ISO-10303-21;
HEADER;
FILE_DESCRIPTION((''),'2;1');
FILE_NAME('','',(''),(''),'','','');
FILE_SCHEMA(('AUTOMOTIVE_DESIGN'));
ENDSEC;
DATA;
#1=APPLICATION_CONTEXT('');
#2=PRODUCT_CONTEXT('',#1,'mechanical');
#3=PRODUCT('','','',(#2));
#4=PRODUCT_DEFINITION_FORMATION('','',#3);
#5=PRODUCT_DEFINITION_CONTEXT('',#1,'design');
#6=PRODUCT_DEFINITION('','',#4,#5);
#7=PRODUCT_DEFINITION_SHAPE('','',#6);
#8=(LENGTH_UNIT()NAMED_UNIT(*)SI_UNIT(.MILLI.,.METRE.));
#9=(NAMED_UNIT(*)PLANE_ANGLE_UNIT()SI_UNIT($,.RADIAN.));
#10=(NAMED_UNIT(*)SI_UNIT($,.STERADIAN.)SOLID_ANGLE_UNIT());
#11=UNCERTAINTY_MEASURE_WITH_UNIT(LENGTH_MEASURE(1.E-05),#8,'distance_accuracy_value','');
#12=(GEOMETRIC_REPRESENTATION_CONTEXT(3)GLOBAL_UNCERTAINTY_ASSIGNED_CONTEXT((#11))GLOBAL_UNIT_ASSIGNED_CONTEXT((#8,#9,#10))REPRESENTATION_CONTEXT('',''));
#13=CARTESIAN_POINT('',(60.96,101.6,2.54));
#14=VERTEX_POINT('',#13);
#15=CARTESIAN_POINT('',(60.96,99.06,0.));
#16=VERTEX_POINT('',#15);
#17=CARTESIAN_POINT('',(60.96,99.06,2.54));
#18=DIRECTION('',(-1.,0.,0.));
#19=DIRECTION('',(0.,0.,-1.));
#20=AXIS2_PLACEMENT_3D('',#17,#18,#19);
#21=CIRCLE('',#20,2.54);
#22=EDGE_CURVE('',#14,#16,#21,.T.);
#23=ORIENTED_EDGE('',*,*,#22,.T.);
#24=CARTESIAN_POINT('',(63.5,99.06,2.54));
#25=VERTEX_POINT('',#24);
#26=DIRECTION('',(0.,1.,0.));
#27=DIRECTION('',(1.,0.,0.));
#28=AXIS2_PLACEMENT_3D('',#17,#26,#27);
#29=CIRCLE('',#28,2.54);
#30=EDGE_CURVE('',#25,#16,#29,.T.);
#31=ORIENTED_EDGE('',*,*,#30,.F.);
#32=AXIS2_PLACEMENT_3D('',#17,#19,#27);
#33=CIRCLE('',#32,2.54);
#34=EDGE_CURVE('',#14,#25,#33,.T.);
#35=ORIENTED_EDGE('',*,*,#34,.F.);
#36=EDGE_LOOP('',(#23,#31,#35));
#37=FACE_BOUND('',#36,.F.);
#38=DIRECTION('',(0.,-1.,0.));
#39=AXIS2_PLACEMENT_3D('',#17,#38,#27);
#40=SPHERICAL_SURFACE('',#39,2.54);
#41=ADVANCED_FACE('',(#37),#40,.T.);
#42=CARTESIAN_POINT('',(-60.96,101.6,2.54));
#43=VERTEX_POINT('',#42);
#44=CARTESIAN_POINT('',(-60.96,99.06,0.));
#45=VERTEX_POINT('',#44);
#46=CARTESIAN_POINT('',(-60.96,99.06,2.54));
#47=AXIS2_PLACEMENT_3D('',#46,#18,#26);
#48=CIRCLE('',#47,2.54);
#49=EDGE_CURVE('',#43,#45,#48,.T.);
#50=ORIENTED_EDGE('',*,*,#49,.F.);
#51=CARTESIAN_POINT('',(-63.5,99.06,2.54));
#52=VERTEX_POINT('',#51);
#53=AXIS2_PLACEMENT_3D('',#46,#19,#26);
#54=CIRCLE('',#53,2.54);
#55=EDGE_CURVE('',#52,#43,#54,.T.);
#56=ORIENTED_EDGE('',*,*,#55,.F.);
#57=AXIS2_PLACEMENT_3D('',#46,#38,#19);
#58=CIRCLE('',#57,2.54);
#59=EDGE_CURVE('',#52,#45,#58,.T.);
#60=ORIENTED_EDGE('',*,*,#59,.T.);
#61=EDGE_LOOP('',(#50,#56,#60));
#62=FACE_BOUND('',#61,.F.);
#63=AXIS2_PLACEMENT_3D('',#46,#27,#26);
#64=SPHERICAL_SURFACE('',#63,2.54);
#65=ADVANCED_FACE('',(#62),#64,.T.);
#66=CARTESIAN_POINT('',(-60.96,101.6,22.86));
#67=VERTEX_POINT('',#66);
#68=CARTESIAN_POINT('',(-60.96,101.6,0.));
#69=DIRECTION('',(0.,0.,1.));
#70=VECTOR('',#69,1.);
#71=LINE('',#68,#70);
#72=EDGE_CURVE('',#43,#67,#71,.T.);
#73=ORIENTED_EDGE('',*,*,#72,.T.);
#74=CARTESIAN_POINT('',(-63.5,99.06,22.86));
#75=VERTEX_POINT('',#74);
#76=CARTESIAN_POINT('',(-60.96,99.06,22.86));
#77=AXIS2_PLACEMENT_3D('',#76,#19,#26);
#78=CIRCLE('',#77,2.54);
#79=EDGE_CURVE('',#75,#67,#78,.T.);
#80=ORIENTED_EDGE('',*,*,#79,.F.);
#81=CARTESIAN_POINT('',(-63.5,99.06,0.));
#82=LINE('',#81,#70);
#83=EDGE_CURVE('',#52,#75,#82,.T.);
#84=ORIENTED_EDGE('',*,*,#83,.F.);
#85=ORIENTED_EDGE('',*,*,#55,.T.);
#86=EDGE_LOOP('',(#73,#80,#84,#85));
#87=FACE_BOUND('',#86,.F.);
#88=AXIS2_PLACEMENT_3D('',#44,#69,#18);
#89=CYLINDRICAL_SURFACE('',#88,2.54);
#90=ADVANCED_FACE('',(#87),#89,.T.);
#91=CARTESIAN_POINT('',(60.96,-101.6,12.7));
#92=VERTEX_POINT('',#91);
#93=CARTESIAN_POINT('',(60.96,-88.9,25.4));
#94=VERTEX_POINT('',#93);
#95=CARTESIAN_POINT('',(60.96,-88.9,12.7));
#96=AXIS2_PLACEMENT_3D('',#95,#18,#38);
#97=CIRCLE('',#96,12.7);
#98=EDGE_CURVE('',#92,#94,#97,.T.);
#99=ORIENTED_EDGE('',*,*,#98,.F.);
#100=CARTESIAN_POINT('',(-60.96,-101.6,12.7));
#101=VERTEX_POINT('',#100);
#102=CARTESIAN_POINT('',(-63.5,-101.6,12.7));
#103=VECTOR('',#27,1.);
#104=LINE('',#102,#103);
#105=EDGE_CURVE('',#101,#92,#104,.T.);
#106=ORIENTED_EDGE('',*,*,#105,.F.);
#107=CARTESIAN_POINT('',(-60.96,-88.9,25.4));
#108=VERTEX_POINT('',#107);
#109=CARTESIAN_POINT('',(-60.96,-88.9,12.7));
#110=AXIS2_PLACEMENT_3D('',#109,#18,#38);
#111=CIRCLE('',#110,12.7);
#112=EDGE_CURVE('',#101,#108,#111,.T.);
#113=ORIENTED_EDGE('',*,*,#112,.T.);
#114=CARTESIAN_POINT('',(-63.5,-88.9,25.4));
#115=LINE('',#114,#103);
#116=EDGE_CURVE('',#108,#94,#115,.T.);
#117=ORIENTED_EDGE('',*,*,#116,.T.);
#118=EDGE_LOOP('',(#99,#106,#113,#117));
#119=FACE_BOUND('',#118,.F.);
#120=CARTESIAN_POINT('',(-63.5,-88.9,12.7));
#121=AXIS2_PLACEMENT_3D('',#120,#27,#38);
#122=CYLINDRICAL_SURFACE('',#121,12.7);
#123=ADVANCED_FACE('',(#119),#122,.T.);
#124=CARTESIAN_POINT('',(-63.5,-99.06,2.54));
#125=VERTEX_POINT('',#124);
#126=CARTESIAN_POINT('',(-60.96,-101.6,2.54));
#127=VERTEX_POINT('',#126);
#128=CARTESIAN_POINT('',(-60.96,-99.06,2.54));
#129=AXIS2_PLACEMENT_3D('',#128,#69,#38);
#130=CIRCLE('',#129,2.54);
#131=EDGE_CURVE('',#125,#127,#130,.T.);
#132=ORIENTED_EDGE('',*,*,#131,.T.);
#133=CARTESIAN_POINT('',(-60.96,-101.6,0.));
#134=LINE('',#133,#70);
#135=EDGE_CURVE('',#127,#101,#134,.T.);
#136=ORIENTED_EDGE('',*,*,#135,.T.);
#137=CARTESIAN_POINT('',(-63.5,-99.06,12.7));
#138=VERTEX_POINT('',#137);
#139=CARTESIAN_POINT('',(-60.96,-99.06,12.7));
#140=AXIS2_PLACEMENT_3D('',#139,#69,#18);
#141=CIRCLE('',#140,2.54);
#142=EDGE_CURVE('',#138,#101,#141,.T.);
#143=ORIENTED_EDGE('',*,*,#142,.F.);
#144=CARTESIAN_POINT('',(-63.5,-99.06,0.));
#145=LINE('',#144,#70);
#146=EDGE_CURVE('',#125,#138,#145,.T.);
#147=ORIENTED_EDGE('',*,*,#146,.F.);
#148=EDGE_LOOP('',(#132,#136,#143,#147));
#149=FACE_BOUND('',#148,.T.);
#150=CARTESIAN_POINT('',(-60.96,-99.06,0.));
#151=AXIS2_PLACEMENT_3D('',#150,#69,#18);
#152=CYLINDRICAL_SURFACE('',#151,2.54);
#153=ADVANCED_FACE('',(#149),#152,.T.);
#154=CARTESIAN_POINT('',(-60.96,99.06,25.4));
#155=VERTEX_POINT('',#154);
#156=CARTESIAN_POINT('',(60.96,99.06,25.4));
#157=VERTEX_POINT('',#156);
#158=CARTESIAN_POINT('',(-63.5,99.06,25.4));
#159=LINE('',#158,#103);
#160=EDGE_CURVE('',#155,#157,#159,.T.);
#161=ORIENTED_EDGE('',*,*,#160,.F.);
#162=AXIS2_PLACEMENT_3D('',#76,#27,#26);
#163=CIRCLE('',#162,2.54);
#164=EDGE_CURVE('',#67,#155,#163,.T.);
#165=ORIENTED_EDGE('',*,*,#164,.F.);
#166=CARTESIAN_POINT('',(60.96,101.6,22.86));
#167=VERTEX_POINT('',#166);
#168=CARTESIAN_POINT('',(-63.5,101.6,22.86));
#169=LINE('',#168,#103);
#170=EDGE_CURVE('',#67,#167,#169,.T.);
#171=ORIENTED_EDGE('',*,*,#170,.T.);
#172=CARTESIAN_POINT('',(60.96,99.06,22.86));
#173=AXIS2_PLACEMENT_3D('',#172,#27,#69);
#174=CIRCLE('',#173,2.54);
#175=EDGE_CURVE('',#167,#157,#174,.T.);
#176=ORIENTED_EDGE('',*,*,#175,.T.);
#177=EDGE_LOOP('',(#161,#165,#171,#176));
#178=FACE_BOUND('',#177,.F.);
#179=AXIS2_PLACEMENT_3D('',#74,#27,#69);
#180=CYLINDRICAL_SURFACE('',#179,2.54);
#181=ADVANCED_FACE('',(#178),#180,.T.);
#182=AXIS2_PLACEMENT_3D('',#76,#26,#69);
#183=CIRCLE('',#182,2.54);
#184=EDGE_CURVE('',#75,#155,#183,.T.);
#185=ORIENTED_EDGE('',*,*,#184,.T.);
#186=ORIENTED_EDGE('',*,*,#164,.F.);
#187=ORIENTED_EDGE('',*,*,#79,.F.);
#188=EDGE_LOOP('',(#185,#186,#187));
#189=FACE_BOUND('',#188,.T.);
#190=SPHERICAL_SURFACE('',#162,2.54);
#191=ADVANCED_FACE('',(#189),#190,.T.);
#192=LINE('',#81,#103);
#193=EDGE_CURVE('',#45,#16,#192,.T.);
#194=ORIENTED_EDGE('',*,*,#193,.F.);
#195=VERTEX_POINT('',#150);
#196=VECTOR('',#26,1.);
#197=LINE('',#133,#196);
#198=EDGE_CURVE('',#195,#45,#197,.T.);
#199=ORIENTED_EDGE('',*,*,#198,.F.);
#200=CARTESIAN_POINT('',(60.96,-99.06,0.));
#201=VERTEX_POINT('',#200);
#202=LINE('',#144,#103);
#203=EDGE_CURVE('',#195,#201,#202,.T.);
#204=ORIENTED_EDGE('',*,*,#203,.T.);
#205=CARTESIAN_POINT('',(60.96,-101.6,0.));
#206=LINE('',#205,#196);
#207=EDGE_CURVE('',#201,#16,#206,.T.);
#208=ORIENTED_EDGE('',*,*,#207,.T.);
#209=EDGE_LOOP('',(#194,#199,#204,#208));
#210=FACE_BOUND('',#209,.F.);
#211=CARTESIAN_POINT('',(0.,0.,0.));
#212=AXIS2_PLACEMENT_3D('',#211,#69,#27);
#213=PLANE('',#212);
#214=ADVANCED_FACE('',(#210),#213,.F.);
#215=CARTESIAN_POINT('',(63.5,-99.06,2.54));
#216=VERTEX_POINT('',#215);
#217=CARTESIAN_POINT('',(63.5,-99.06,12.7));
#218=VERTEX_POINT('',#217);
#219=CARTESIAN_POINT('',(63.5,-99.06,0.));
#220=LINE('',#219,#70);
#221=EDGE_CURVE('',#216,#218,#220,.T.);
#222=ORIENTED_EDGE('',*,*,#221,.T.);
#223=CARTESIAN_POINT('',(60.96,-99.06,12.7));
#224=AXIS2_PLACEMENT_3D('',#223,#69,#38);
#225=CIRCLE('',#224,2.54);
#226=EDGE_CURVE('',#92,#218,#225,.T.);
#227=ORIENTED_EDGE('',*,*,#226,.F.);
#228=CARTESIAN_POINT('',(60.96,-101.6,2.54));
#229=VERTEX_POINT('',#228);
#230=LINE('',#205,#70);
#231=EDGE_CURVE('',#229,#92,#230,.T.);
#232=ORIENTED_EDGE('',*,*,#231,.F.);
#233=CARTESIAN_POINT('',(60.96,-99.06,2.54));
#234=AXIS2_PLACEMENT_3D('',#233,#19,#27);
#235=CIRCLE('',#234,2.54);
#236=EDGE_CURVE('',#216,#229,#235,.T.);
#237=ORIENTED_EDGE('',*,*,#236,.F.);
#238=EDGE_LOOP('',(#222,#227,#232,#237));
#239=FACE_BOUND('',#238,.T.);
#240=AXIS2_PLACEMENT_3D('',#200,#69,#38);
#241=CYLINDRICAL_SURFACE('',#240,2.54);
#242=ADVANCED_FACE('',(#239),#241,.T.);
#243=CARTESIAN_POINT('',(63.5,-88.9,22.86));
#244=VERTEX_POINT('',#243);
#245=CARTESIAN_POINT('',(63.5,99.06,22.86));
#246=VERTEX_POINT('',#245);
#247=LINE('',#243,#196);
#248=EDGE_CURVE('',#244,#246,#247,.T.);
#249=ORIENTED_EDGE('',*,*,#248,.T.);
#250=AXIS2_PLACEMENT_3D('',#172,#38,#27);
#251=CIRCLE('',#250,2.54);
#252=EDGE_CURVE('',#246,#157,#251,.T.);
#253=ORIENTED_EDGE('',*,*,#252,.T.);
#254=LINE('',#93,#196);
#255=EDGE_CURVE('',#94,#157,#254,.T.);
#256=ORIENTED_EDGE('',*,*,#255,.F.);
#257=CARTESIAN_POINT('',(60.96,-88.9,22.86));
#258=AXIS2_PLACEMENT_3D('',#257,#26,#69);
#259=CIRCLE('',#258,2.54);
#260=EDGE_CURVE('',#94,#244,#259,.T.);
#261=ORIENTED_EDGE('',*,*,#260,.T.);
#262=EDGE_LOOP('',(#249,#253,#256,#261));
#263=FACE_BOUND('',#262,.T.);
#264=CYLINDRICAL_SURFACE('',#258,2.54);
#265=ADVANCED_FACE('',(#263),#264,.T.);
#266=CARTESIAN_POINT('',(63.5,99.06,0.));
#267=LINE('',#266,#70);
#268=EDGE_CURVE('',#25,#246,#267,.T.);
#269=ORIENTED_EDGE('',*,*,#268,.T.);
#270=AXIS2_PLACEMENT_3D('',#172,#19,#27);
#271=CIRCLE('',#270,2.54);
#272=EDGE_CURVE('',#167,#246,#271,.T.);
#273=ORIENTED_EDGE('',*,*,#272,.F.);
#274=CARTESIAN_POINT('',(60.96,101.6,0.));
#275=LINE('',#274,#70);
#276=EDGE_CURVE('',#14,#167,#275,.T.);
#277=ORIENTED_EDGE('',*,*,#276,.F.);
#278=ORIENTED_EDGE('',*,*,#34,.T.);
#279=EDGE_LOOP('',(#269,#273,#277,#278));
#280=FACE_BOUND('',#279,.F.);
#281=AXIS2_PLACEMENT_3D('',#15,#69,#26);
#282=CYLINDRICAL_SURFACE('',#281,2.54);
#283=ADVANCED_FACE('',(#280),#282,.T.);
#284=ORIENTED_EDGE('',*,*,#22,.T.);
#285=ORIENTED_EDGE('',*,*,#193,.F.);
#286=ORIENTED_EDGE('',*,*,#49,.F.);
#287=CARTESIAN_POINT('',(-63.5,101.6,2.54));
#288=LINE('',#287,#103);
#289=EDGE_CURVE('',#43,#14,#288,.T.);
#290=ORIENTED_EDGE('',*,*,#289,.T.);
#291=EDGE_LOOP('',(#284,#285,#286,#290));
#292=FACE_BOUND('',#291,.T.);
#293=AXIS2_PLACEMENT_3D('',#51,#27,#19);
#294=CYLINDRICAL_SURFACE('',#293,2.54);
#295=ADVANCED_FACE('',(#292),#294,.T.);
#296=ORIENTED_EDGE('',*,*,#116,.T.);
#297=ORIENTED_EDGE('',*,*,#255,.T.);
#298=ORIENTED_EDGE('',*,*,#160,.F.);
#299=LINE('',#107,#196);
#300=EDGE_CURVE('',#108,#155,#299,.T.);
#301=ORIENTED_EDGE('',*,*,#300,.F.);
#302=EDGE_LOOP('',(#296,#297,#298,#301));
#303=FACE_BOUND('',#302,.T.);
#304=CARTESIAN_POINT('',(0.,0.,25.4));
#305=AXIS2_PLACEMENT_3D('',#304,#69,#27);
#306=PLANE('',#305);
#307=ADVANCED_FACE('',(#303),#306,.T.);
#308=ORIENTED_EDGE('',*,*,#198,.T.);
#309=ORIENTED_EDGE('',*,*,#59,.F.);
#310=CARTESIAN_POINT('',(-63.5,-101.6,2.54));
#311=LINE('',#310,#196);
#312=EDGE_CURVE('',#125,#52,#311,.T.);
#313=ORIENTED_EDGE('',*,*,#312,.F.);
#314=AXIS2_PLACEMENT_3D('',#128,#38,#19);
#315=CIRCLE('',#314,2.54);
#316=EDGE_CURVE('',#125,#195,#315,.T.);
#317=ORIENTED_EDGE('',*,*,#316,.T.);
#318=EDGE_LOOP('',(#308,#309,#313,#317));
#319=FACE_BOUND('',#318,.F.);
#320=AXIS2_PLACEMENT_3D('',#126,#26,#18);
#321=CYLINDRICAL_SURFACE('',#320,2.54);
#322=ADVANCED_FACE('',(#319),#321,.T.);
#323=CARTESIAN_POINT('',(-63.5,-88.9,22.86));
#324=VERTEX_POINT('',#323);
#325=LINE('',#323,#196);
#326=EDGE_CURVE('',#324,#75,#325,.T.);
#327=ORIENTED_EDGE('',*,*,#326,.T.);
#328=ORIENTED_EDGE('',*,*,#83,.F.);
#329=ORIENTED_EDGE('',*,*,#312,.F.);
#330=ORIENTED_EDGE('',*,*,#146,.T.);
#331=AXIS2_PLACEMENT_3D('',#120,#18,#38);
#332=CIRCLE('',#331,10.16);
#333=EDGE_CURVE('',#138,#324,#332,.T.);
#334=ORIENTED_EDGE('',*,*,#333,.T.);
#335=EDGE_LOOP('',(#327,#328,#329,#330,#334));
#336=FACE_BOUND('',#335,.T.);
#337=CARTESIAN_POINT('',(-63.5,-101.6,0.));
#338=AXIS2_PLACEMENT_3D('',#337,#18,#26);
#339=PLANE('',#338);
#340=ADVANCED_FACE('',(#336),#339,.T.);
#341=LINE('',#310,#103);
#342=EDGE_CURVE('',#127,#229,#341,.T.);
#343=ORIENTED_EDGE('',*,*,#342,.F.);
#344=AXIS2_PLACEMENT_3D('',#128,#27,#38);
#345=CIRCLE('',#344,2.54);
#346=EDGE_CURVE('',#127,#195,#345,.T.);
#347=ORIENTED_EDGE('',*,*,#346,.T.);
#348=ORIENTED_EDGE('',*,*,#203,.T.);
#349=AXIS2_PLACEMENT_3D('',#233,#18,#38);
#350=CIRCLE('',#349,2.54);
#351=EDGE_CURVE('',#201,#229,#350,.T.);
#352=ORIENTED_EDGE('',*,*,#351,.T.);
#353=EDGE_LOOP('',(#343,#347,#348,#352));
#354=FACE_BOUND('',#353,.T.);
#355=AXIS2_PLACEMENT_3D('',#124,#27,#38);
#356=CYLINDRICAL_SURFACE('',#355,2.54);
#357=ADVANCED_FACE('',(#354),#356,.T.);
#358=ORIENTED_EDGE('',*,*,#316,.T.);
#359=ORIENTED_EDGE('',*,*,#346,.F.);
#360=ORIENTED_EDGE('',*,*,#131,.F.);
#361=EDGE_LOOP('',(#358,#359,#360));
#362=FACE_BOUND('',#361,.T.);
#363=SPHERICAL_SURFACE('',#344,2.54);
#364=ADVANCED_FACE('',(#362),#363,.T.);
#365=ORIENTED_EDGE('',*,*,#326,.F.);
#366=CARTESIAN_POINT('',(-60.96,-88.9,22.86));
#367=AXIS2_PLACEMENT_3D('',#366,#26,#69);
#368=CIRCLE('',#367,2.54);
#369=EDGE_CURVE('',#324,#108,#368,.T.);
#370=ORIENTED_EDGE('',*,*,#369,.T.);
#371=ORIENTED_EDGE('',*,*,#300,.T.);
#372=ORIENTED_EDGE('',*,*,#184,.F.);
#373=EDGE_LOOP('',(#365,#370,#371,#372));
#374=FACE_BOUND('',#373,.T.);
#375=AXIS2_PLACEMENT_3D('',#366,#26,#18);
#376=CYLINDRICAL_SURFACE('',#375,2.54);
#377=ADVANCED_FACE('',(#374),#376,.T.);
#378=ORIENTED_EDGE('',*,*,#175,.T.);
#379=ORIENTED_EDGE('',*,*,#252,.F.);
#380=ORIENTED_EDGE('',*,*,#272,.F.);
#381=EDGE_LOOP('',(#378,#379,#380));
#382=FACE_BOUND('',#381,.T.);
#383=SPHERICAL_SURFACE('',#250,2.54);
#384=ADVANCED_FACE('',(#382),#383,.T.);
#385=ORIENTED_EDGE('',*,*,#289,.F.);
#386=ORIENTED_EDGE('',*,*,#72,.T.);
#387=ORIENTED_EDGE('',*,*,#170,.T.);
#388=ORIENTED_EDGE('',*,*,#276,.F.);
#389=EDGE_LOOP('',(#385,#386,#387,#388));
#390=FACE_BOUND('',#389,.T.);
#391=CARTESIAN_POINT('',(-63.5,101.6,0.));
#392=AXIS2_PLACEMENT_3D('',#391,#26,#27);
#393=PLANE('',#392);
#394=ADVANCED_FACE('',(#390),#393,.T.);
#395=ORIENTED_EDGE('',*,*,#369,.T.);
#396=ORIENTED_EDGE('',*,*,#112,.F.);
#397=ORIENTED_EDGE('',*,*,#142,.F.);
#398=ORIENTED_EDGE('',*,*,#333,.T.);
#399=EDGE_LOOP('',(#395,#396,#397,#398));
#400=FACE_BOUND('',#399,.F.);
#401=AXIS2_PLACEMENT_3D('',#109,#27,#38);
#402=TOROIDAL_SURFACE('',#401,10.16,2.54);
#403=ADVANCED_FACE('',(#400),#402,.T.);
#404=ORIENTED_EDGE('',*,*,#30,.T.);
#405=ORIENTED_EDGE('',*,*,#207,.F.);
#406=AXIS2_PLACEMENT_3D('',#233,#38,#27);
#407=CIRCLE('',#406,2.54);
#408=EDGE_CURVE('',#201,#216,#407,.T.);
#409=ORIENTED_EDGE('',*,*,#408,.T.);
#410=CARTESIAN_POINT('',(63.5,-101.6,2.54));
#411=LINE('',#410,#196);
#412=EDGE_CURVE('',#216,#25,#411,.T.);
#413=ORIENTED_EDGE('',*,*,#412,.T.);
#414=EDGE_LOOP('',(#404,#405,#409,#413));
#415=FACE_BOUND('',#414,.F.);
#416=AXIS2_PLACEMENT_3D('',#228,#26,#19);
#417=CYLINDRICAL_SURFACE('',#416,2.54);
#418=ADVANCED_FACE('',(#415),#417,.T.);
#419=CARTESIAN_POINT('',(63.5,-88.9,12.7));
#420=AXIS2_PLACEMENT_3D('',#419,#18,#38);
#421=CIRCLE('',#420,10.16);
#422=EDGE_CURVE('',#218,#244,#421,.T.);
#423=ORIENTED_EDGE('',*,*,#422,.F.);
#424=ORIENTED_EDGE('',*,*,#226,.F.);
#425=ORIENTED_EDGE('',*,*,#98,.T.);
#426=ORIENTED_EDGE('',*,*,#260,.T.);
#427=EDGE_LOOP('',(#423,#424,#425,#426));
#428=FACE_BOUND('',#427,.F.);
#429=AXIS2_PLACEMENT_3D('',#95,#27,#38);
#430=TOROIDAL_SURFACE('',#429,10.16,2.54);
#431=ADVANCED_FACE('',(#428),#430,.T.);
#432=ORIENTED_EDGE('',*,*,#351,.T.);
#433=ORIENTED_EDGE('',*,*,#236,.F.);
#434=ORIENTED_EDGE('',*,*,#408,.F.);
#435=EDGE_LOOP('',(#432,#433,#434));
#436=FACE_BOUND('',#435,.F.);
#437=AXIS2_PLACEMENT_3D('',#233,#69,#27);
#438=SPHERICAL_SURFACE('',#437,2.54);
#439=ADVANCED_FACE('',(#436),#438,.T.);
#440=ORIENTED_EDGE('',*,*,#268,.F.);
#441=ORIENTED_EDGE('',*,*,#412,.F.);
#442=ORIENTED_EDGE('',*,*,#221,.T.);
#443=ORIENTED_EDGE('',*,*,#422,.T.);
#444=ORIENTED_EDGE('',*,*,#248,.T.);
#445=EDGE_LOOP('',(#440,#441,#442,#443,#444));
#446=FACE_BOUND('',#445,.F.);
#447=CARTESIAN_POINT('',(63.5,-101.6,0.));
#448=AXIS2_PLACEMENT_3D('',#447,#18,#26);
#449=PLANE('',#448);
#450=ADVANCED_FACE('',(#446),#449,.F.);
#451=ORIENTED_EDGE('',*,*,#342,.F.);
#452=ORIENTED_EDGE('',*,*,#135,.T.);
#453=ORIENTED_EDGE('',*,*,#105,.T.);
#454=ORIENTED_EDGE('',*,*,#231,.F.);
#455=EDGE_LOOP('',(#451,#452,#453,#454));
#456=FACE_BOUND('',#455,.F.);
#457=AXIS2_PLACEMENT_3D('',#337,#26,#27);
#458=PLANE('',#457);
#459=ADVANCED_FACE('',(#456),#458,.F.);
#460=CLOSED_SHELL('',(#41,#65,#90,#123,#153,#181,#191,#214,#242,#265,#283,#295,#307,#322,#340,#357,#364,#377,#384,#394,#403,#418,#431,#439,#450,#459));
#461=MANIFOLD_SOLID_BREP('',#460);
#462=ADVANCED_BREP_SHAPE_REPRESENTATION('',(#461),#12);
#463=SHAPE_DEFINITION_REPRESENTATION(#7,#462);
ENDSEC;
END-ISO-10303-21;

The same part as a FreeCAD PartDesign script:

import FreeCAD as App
import Part
import Sketcher

V = App.Vector
Q = App.Units.Quantity


def edges_at(feature, points):
    """Names of the edges that pass closest to the given points."""
    edges = feature.Shape.Edges
    near = lambda p: min(range(len(edges)), key=lambda i: edges[i].distToShape(Part.Vertex(*p))[0])
    return sorted({f"Edge{near(p) + 1}" for p in points})


def add_polygon(sketch, points):
    """Adds a closed chain of lines whose ends are joined by coincident constraints."""
    first, n = sketch.GeometryCount, len(points)
    for a, b in zip(points, points[1:] + points[:1]):
        sketch.addGeometry(Part.LineSegment(App.Vector(*a, 0), App.Vector(*b, 0)), False)
    for i in range(n):
        sketch.addConstraint(Sketcher.Constraint("Coincident", first + i, 2, first + (i + 1) % n, 1))

doc = App.newDocument("Part")
body = doc.addObject("PartDesign::Body", "Body")

sketch1 = doc.addObject("Sketcher::SketchObject", "Sketch")
body.addObject(sketch1)
sketch1.AttachmentSupport = (doc.XY_Plane, [""])
sketch1.MapMode = "FlatFace"
add_polygon(sketch1, [(-64, 102), (-64, -102), (64, -102), (64, 102)])
sketch1.addConstraint(Sketcher.Constraint("Vertical", 0))
sketch1.addConstraint(Sketcher.Constraint("Horizontal", 1))
sketch1.addConstraint(Sketcher.Constraint("Vertical", 2))
sketch1.addConstraint(Sketcher.Constraint("Horizontal", 3))
sketch1.addConstraint(Sketcher.Constraint("Symmetric", 0, 2, 2, 2, -1, 1))
sketch1.addConstraint(Sketcher.Constraint("DistanceX", 1, 1, 1, 2, Q("5 in")))
sketch1.addConstraint(Sketcher.Constraint("DistanceY", 0, 2, 0, 1, Q("8 in")))
pad1 = doc.addObject("PartDesign::Pad", "Pad")
body.addObject(pad1)
pad1.Profile = sketch1
pad1.Length = Q("1 in")
doc.recompute()

fillet = doc.addObject("PartDesign::Fillet", "Fillet")
body.addObject(fillet)
fillet.Base = (pad1, edges_at(pad1, [(0, -101.6, 25.4)]))
fillet.Radius = Q("0.5 in")
doc.recompute()

fillet2 = doc.addObject("PartDesign::Fillet", "Fillet001")
body.addObject(fillet2)
fillet2.Base = (fillet, edges_at(fillet, [
    (63.5, 6.35, 25.4),
    (63.5, 0, 0),
    (0, -101.6, 0),
    (63.5, 101.6, 12.7),
    (0, 101.6, 25.4),
    (0, 101.6, 0),
    (-63.5, 101.6, 12.7),
    (-63.5, 6.35, 25.4),
    (-63.5, 0, 0),
]))
fillet2.Radius = Q("0.1 in")

doc.recompute()
